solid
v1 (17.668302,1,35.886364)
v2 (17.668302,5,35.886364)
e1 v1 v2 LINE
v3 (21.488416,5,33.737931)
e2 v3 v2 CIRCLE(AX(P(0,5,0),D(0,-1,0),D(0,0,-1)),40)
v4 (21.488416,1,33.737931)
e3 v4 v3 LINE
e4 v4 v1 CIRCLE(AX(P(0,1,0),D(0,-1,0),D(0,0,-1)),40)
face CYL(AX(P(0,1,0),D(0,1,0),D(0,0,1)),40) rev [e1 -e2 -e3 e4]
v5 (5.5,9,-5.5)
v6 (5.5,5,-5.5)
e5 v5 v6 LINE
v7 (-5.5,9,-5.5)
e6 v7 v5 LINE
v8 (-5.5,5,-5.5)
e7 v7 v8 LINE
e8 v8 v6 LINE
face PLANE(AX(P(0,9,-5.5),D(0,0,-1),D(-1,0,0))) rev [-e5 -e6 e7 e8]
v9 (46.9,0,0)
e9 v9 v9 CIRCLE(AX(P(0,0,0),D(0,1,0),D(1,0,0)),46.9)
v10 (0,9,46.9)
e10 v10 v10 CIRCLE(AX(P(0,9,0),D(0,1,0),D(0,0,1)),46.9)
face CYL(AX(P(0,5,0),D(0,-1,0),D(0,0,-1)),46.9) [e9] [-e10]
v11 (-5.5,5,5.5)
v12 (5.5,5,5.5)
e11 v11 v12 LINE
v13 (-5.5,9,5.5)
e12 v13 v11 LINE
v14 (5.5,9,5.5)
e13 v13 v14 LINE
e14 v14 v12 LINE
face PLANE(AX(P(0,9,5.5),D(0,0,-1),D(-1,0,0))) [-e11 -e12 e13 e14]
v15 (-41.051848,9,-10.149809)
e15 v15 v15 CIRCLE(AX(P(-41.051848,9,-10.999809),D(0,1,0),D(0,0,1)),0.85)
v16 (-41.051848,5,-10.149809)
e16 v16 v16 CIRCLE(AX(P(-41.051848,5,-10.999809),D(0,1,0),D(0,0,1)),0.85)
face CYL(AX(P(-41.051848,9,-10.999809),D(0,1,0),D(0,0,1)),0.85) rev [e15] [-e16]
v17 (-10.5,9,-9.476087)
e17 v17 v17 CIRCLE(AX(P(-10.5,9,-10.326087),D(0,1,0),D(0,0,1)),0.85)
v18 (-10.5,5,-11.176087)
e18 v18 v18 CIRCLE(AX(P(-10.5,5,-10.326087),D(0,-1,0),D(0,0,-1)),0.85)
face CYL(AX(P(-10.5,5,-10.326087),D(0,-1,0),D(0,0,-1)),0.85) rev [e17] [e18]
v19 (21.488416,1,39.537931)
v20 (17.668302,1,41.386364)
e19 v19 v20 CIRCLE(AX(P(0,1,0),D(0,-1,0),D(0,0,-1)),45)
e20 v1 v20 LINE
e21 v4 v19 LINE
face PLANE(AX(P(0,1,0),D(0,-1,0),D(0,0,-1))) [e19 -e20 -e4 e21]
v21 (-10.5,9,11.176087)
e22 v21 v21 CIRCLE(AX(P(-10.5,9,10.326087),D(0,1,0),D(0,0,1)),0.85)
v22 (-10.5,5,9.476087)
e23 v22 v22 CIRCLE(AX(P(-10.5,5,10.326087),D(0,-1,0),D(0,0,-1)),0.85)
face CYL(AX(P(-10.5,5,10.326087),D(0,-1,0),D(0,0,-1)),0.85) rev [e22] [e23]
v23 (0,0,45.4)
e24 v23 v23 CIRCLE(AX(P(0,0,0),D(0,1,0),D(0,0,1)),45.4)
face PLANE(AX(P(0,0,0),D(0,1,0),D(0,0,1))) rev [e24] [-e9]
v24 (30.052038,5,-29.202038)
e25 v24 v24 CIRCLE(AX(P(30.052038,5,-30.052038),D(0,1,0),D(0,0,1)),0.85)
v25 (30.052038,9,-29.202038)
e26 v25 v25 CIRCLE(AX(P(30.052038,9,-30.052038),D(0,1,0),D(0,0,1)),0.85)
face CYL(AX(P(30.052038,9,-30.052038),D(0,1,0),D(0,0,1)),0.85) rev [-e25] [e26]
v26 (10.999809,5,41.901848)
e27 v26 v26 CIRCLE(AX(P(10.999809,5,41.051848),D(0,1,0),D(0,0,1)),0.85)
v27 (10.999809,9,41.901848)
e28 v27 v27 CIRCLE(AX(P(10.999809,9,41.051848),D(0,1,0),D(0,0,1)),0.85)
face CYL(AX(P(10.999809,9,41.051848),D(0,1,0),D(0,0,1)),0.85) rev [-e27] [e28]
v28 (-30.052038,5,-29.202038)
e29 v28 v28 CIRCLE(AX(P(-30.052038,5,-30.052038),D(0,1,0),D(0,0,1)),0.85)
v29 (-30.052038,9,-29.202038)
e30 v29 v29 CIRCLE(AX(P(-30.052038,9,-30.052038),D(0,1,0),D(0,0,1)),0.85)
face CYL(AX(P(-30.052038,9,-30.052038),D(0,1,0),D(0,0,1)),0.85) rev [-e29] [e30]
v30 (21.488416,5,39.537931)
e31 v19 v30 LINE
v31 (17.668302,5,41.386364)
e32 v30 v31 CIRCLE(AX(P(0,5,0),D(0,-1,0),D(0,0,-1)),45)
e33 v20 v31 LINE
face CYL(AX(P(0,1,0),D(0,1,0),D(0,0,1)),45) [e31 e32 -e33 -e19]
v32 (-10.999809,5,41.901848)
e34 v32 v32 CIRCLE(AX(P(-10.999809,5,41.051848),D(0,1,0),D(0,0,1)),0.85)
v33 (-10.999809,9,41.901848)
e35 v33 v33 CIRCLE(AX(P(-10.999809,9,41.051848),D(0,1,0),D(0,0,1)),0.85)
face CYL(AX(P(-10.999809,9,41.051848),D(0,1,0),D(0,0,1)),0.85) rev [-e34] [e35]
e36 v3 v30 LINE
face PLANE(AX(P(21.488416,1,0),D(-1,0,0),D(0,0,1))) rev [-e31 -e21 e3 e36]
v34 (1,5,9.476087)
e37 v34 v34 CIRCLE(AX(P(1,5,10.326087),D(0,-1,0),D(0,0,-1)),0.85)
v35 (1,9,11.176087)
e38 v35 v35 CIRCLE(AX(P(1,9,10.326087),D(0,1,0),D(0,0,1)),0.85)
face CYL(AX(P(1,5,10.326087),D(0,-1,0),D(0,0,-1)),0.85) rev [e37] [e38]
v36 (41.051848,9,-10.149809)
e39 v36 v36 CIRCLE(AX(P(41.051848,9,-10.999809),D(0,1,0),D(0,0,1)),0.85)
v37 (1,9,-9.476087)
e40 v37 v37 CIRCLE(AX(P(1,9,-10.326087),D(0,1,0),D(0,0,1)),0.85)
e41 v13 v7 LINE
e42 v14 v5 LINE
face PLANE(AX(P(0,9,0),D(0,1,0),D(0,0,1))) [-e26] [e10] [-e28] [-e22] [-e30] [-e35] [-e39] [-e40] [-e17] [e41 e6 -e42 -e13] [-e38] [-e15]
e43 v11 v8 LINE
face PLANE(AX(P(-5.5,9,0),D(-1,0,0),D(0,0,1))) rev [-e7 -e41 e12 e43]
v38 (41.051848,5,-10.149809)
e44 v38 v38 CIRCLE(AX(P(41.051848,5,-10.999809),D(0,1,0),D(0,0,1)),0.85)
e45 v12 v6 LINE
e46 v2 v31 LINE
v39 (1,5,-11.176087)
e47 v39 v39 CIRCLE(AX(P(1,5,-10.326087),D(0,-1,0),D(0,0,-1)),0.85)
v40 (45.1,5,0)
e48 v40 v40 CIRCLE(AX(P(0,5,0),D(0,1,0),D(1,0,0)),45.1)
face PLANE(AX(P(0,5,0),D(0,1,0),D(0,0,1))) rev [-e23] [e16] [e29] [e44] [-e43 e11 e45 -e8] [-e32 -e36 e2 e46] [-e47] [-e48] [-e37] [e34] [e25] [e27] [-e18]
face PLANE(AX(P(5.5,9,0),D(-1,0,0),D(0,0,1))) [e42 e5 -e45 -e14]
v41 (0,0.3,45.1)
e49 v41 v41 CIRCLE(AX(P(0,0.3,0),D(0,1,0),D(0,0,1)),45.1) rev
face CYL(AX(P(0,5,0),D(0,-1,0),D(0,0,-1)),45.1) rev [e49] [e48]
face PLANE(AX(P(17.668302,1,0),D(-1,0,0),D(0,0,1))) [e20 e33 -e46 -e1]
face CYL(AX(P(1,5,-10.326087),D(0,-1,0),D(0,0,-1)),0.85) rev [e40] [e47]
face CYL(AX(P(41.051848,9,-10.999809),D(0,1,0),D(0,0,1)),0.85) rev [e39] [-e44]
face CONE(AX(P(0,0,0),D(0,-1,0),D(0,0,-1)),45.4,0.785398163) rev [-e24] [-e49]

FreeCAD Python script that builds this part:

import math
import FreeCAD as App
import Part
import Sketcher

V = App.Vector
Q = App.Units.Quantity


def edges_at(feature, points):
    """Names of the edges that pass closest to the given points."""
    edges = feature.Shape.Edges
    near = lambda p: min(range(len(edges)), key=lambda i: edges[i].distToShape(Part.Vertex(*p))[0])
    return sorted({f"Edge{near(p) + 1}" for p in points})


def add_polygon(sketch, points):
    """Adds a closed chain of lines whose ends are joined by coincident constraints."""
    first, n = sketch.GeometryCount, len(points)
    for a, b in zip(points, points[1:] + points[:1]):
        sketch.addGeometry(Part.LineSegment(App.Vector(*a, 0), App.Vector(*b, 0)), False)
    for i in range(n):
        sketch.addConstraint(Sketcher.Constraint("Coincident", first + i, 2, first + (i + 1) % n, 1))

doc = App.newDocument("Part")
body = doc.addObject("PartDesign::Body", "Body")

sketch1 = body.newObject("Sketcher::SketchObject", "Sketch")
sketch1.AttachmentSupport = (doc.getObject("XZ_Plane"), [""])
sketch1.MapMode = "FlatFace"
sketch1.addGeometry(Part.Circle(V(0, 0, 0), V(0, 0, 1), 47), False)
sketch1.addGeometry(Part.Circle(V(0, 0, 0), V(0, 0, 1), 45), False)
sketch1.addConstraint(Sketcher.Constraint("Coincident", 0, 3, -1, 1))
sketch1.addConstraint(Sketcher.Constraint("Coincident", 1, 3, -1, 1))
sketch1.addConstraint(Sketcher.Constraint("Diameter", 0, Q("93.8 mm")))
sketch1.addConstraint(Sketcher.Constraint("Diameter", 1, Q("90.2 mm")))
pad1 = body.newObject("PartDesign::Pad", "Pad")
pad1.Profile = sketch1
pad1.Length = 5
pad1.Reversed = True

sketch2 = body.newObject("Sketcher::SketchObject", "Sketch001")
sketch2.AttachmentSupport = (doc.getObject("XZ_Plane"), [""])
sketch2.MapMode = "FlatFace"
sketch2.AttachmentOffset = App.Placement(V(0, 0, -5), App.Rotation())
sketch2.addGeometry(Part.Circle(V(0, 0, 0), V(0, 0, 1), 47), False)
sketch2.addConstraint(Sketcher.Constraint("Coincident", 0, 3, -1, 1))
sketch2.addConstraint(Sketcher.Constraint("Diameter", 0, Q("93.8 mm")))
pad2 = body.newObject("PartDesign::Pad", "Pad001")
pad2.Profile = sketch2
pad2.Length = 4
pad2.Reversed = True

sketch3 = body.newObject("Sketcher::SketchObject", "Sketch002")
sketch3.AttachmentSupport = (doc.getObject("XZ_Plane"), [""])
sketch3.MapMode = "FlatFace"
sketch3.AttachmentOffset = App.Placement(V(0, 0, -5), App.Rotation())
add_polygon(sketch3, [(-6, 6), (-6, -6), (6, -6), (6, 6)])
sketch3.addConstraint(Sketcher.Constraint("Vertical", 0))
sketch3.addConstraint(Sketcher.Constraint("Horizontal", 1))
sketch3.addConstraint(Sketcher.Constraint("Vertical", 2))
sketch3.addConstraint(Sketcher.Constraint("Horizontal", 3))
sketch3.addConstraint(Sketcher.Constraint("Symmetric", 0, 2, 2, 2, -1, 1))
sketch3.addConstraint(Sketcher.Constraint("Equal", 3, 0))
sketch3.addConstraint(Sketcher.Constraint("DistanceX", 1, 1, 1, 2, Q("11 mm")))
pocket1 = body.newObject("PartDesign::Pocket", "Pocket")
pocket1.Profile = sketch3
pocket1.Type = "ThroughAll"

sketch4 = body.newObject("Sketcher::SketchObject", "Sketch003")
sketch4.AttachmentSupport = (doc.getObject("XZ_Plane"), [""])
sketch4.MapMode = "FlatFace"
sketch4.AttachmentOffset = App.Placement(V(0, 0, -5), App.Rotation())
sketch4.addGeometry(Part.Circle(V(1, -10.3, 0), V(0, 0, 1), 0.8), False)
sketch4.addGeometry(Part.Circle(V(-10.5, -10.3, 0), V(0, 0, 1), 0.8), False)
sketch4.addGeometry(Part.Circle(V(-10.5, 10.3, 0), V(0, 0, 1), 0.8), False)
sketch4.addGeometry(Part.Circle(V(1, 10.3, 0), V(0, 0, 1), 0.8), False)
sketch4.addConstraint(Sketcher.Constraint("Equal", 0, 1))
sketch4.addConstraint(Sketcher.Constraint("Equal", 1, 2))
sketch4.addConstraint(Sketcher.Constraint("Equal", 2, 3))
sketch4.addConstraint(Sketcher.Constraint("Symmetric", 1, 3, 2, 3, -1))
sketch4.addConstraint(Sketcher.Constraint("Symmetric", 0, 3, 3, 3, -1))
sketch4.addConstraint(Sketcher.Constraint("Horizontal", 0, 3, 1, 3))
sketch4.addConstraint(Sketcher.Constraint("Diameter", 0, Q("1.7 mm")))
sketch4.addConstraint(Sketcher.Constraint("DistanceX", -1, 1, 0, 3, Q("1 mm")))
sketch4.addConstraint(Sketcher.Constraint("DistanceX", 1, 3, -1, 1, Q("10.5 mm")))
sketch4.addConstraint(Sketcher.Constraint("DistanceY", 0, 3, -1, 1, Q("10.326087 mm")))
doc.recompute()
hole = body.newObject("PartDesign::Hole", "Hole")
hole.Profile = sketch4
hole.ThreadType = "None"
hole.Diameter = 1.7
hole.DepthType = "Dimension"
hole.Depth = 4.4
hole.DrillPoint = "Flat"
doc.recompute()

chamfer = body.newObject("PartDesign::Chamfer", "Chamfer")
chamfer.Base = (hole, edges_at(hole, [(-45.1, 0, 0)]))
chamfer.Size = 0.3

sketch5 = body.newObject("Sketcher::SketchObject", "Sketch004")
sketch5.AttachmentSupport = (doc.getObject("XZ_Plane"), [""])
sketch5.MapMode = "FlatFace"
sketch5.AttachmentOffset = App.Placement(V(0, 0, -9), App.Rotation())
sketch5.addGeometry(Part.Circle(V(-41.1, -11, 0), V(0, 0, 1), 0.8), False)
sketch5.addGeometry(Part.Circle(V(-30.1, -30.1, 0), V(0, 0, 1), 0.8), False)
sketch5.addGeometry(Part.Circle(V(30.1, -30.1, 0), V(0, 0, 1), 0.8), False)
sketch5.addGeometry(Part.Circle(V(41.1, -11, 0), V(0, 0, 1), 0.8), False)
sketch5.addGeometry(Part.Circle(V(11, 41.1, 0), V(0, 0, 1), 0.8), False)
sketch5.addGeometry(Part.Circle(V(-11, 41.1, 0), V(0, 0, 1), 0.8), False)
sketch5.addConstraint(Sketcher.Constraint("Equal", 0, 1))
sketch5.addConstraint(Sketcher.Constraint("Equal", 1, 2))
sketch5.addConstraint(Sketcher.Constraint("Equal", 2, 3))
sketch5.addConstraint(Sketcher.Constraint("Equal", 3, 4))
sketch5.addConstraint(Sketcher.Constraint("Equal", 4, 5))
sketch5.addConstraint(Sketcher.Constraint("Symmetric", 1, 3, 2, 3, -2))
sketch5.addConstraint(Sketcher.Constraint("Symmetric", 0, 3, 3, 3, -2))
sketch5.addConstraint(Sketcher.Constraint("Symmetric", 4, 3, 5, 3, -2))
sketch5.addConstraint(Sketcher.Constraint("Diameter", 0, Q("1.7 mm")))
sketch5.addConstraint(Sketcher.Constraint("DistanceY", 0, 3, -1, 1, Q("10.999809 mm")))
sketch5.addConstraint(Sketcher.Constraint("DistanceX", 1, 3, -1, 1, Q("30.052038 mm")))
sketch5.addConstraint(Sketcher.Constraint("DistanceY", 1, 3, -1, 1, Q("30.052038 mm")))
sketch5.addConstraint(Sketcher.Constraint("DistanceX", -1, 1, 4, 3, Q("10.999809 mm")))
sketch5.addConstraint(Sketcher.Constraint("DistanceX", 0, 3, 1, 3, Q("10.999809 mm")))
sketch5.addConstraint(Sketcher.Constraint("DistanceY", -1, 1, 4, 3, Q("41.051848 mm")))
doc.recompute()
hole2 = body.newObject("PartDesign::Hole", "Hole001")
hole2.Profile = sketch5
hole2.ThreadType = "None"
hole2.Diameter = 1.7
hole2.DepthType = "ThroughAll"
hole2.Reversed = True

sketch6 = body.newObject("Sketcher::SketchObject", "Sketch005")
sketch6.AttachmentSupport = (doc.getObject("XZ_Plane"), [""])
sketch6.MapMode = "FlatFace"
sketch6.AttachmentOffset = App.Placement(V(0, 0, -5), App.Rotation())
sketch6.addGeometry(Part.LineSegment(V(17.7, 41.4, 0), V(17.7, 35.9, 0)), False)
sketch6.addGeometry(Part.ArcOfCircle(Part.Circle(V(0, 0, 0), V(0, 0, 1), 40), math.radians(57.51), math.radians(63.79)), False)
sketch6.addGeometry(Part.LineSegment(V(21.5, 33.7, 0), V(21.5, 39.5, 0)), False)
sketch6.addGeometry(Part.ArcOfCircle(Part.Circle(V(0, 0, 0), V(0, 0, 1), 45), math.radians(61.48), math.radians(66.88)), False)
sketch6.addConstraint(Sketcher.Constraint("Coincident", 0, 2, 1, 2))
sketch6.addConstraint(Sketcher.Constraint("Coincident", 1, 1, 2, 1))
sketch6.addConstraint(Sketcher.Constraint("Coincident", 2, 2, 3, 1))
sketch6.addConstraint(Sketcher.Constraint("Coincident", 3, 2, 0, 1))
sketch6.addConstraint(Sketcher.Constraint("Vertical", 0))
sketch6.addConstraint(Sketcher.Constraint("Vertical", 2))
sketch6.addConstraint(Sketcher.Constraint("Coincident", 1, 3, -1, 1))
sketch6.addConstraint(Sketcher.Constraint("Coincident", 3, 3, -1, 1))
sketch6.addConstraint(Sketcher.Constraint("Radius", 1, Q("40 mm")))
sketch6.addConstraint(Sketcher.Constraint("Radius", 3, Q("45 mm")))
sketch6.addConstraint(Sketcher.Constraint("DistanceY", 0, 2, 0, 1, Q("5.5 mm")))
sketch6.addConstraint(Sketcher.Constraint("DistanceY", 2, 1, 2, 2, Q("5.8 mm")))
pad3 = body.newObject("PartDesign::Pad", "Pad002")
pad3.Profile = sketch6
pad3.Length = 4

doc.recompute()
